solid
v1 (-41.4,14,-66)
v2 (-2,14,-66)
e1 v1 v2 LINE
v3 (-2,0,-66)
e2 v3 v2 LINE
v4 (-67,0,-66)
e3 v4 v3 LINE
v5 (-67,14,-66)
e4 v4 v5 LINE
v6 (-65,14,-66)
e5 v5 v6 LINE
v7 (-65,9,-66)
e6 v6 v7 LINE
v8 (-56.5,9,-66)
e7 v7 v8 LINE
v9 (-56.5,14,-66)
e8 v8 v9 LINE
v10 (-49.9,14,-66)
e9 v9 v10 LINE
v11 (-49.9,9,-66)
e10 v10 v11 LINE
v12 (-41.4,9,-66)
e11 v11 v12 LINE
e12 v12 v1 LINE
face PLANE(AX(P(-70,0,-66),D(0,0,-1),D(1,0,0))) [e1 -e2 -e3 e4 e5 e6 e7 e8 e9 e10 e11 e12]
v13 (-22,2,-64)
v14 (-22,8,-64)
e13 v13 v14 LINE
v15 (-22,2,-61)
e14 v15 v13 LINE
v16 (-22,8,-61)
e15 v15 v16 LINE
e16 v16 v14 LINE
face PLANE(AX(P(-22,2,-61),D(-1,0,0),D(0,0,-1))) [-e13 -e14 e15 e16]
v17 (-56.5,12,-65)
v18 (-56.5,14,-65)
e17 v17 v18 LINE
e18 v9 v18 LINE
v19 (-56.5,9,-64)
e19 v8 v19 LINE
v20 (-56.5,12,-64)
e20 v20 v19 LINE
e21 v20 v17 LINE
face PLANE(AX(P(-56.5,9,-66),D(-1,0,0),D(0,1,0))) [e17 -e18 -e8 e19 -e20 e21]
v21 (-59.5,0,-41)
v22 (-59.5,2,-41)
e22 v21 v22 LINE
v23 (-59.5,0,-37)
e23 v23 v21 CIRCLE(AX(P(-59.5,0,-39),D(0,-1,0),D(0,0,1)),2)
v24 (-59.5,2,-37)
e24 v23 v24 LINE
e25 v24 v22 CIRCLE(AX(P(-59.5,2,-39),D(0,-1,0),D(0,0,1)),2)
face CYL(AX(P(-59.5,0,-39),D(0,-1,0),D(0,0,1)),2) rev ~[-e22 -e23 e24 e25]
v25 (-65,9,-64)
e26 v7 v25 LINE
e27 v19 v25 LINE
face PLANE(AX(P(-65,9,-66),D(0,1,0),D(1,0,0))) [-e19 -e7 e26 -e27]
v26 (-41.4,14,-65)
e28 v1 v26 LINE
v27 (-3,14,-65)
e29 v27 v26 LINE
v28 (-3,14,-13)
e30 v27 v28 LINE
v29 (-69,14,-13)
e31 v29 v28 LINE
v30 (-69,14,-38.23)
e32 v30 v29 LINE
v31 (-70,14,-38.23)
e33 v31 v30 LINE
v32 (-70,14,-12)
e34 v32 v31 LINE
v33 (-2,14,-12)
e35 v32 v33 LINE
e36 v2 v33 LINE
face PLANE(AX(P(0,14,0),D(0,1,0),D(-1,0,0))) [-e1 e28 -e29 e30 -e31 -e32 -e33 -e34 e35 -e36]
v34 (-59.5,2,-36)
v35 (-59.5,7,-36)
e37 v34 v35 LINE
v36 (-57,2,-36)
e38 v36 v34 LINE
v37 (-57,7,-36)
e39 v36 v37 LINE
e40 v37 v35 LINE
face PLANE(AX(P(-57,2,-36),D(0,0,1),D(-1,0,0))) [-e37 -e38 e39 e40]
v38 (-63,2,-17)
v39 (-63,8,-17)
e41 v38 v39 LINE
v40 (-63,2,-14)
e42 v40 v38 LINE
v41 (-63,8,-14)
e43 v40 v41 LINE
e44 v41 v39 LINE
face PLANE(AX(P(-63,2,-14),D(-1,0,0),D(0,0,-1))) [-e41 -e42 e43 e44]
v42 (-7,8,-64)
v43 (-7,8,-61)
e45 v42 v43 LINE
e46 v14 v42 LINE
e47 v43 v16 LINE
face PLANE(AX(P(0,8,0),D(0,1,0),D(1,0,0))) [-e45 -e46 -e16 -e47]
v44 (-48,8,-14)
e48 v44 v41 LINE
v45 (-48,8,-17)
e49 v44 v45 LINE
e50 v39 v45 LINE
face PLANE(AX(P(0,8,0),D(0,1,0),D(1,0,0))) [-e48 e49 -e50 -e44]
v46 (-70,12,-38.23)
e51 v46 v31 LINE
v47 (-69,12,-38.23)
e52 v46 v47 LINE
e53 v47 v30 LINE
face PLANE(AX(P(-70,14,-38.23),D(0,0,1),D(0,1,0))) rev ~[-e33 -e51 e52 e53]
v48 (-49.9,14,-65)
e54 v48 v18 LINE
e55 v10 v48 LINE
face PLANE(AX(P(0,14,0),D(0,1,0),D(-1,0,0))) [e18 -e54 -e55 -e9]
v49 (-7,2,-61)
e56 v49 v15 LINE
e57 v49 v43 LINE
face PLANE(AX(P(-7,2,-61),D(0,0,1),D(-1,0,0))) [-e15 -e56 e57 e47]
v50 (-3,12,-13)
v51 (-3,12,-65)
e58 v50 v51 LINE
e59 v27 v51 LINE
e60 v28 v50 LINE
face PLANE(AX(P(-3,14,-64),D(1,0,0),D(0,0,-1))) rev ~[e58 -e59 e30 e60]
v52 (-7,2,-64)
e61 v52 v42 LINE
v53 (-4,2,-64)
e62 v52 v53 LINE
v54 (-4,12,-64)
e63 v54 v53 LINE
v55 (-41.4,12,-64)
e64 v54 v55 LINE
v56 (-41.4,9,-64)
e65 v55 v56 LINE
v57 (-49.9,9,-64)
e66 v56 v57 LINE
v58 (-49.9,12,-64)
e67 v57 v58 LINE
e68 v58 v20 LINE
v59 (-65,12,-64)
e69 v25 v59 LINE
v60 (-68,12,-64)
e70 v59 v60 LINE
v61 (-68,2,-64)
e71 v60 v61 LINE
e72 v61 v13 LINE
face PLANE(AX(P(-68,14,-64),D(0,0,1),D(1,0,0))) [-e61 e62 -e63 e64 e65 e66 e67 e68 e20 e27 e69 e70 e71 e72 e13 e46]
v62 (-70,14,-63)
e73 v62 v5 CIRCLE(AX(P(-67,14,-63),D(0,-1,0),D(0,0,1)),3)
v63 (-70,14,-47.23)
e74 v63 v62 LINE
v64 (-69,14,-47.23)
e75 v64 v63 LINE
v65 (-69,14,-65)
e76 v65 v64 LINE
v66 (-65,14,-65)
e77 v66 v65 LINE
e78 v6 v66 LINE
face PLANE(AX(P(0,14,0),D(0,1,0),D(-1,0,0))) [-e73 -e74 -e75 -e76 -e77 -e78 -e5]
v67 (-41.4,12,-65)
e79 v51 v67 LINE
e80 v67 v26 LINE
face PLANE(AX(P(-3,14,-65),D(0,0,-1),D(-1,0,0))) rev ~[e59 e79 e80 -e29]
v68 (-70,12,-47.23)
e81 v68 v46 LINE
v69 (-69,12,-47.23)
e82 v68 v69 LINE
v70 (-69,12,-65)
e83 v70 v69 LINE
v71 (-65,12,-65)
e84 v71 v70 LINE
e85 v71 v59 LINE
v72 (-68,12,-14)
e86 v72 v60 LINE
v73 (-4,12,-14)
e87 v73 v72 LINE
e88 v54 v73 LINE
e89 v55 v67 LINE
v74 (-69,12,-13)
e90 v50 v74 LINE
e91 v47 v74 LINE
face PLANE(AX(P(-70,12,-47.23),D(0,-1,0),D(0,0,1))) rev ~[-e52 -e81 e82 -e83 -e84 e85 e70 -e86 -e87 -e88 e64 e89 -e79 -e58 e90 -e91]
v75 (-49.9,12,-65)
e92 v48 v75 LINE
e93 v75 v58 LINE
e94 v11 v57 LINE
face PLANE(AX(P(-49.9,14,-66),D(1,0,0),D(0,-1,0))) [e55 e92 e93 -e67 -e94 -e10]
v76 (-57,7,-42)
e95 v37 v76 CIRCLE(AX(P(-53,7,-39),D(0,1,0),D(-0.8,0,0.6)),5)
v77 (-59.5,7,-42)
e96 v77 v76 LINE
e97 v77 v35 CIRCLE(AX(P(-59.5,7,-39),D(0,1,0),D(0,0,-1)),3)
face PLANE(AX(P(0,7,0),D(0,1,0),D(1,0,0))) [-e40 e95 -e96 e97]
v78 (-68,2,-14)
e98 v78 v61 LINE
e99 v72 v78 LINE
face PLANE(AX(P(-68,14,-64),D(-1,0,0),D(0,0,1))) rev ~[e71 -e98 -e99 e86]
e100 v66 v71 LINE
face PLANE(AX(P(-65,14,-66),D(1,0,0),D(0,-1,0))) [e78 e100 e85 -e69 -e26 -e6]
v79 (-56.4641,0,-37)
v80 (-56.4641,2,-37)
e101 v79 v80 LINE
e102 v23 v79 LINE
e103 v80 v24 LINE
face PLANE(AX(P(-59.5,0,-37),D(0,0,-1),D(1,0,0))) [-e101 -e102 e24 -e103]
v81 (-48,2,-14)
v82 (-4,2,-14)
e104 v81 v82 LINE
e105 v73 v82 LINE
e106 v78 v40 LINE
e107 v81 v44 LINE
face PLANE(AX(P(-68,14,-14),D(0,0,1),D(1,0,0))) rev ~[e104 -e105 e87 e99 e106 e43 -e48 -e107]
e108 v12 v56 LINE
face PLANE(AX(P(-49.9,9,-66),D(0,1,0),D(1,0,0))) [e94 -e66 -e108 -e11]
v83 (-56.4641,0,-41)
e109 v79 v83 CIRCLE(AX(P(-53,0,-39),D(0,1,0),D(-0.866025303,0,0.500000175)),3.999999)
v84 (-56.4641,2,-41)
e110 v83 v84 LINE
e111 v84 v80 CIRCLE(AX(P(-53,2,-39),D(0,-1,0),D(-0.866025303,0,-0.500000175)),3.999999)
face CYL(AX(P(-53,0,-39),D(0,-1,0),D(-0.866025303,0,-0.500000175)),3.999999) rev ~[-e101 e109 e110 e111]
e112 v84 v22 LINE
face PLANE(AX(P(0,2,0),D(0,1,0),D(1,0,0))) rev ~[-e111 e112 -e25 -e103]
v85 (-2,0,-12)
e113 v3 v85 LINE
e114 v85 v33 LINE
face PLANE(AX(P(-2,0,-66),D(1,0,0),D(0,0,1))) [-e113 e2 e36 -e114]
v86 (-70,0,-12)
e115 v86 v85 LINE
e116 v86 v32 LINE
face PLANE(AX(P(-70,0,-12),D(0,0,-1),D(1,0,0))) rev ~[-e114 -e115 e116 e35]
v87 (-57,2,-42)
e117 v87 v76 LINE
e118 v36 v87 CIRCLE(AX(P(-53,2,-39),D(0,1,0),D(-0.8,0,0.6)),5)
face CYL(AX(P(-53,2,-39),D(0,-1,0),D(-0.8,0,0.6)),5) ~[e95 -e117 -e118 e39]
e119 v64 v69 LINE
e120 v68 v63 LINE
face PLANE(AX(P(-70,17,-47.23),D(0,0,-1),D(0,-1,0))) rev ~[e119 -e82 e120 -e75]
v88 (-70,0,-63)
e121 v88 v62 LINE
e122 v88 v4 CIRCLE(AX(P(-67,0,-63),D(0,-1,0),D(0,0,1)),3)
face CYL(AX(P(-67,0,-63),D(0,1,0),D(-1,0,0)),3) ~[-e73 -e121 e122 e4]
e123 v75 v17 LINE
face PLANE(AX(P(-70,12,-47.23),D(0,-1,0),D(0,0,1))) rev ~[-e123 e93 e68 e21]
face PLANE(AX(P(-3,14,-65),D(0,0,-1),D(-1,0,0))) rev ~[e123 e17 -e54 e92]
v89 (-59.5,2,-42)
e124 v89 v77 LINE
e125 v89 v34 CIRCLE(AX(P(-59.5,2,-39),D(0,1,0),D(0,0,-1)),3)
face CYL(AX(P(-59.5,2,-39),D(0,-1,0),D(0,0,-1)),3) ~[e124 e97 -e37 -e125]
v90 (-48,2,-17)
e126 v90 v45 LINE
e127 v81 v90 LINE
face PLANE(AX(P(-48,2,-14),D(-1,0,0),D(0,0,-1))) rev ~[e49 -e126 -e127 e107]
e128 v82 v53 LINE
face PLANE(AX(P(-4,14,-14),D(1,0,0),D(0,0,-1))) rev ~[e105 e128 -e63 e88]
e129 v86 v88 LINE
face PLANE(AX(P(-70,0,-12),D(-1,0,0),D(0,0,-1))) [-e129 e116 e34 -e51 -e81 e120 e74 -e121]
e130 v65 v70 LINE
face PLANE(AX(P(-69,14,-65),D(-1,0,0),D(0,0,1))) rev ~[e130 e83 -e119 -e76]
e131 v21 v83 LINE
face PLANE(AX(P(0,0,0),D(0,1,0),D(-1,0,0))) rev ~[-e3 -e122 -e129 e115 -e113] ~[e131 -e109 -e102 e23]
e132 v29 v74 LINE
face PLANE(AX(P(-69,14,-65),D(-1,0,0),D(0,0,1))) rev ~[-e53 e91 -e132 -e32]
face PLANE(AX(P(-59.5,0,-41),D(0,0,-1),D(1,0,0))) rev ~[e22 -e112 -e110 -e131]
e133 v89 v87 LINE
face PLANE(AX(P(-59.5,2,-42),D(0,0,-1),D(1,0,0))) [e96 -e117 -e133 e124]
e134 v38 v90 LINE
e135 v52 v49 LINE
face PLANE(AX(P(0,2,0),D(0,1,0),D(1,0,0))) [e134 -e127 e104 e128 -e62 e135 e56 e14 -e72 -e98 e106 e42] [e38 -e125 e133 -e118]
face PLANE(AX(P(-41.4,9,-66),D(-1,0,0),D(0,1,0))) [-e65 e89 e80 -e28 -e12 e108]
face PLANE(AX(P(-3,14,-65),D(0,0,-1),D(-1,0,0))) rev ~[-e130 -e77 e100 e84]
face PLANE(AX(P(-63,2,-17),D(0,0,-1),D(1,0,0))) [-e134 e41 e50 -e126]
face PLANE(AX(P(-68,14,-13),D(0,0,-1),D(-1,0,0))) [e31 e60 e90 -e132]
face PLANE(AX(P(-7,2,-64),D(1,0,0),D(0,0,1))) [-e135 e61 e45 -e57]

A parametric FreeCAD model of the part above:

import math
import FreeCAD as App
import Part
import Sketcher


def edges_at(feature, points):
    """Names of the edges that pass closest to the given points."""
    edges = feature.Shape.Edges
    near = lambda p: min(range(len(edges)), key=lambda i: edges[i].distToShape(Part.Vertex(*p))[0])
    return sorted({f"Edge{near(p) + 1}" for p in points})


def add_polygon(sketch, points):
    """Adds a closed chain of lines whose ends are joined by coincident constraints."""
    first, n = sketch.GeometryCount, len(points)
    for a, b in zip(points, points[1:] + points[:1]):
        sketch.addGeometry(Part.LineSegment(App.Vector(*a, 0), App.Vector(*b, 0)), False)
    for i in range(n):
        sketch.addConstraint(Sketcher.Constraint("Coincident", first + i, 2, first + (i + 1) % n, 1))

doc = App.newDocument("Part")
body = doc.addObject("PartDesign::Body", "Body")

# Sketch on XZ plane
sketch1 = body.newObject("Sketcher::SketchObject", "Sketch")
sketch1.AttachmentSupport = (doc.getObject("XZ_Plane"), [""])
sketch1.MapMode = "FlatFace"
add_polygon(sketch1, [(-70, -66), (-70, -12), (-2, -12), (-2, -66)])  # lines 0-3
sketch1.addConstraint(Sketcher.Constraint("Vertical", 0))
sketch1.addConstraint(Sketcher.Constraint("Horizontal", 1))
sketch1.addConstraint(Sketcher.Constraint("Vertical", 2))
sketch1.addConstraint(Sketcher.Constraint("Horizontal", 3))
sketch1.addConstraint(Sketcher.Constraint("DistanceX", 1, 1, 1, 2, 68.0))
sketch1.addConstraint(Sketcher.Constraint("DistanceY", 0, 1, 0, 2, 54.0))
sketch1.addConstraint(Sketcher.Constraint("DistanceX", 0, 2, -1, 1, 70.0))
sketch1.addConstraint(Sketcher.Constraint("DistanceY", 0, 2, -1, 1, 12.0))
pad1 = body.newObject("PartDesign::Pad", "Pad")
pad1.Profile = sketch1
pad1.Length = 14
pad1.Reversed = True

# Sketch on XZ plane
sketch2 = body.newObject("Sketcher::SketchObject", "Sketch001")
sketch2.AttachmentSupport = (doc.getObject("XZ_Plane"), [""])
sketch2.MapMode = "FlatFace"
sketch2.AttachmentOffset = App.Placement(App.Vector(0, 0, -14), App.Rotation())
add_polygon(sketch2, [(-4, -64), (-68, -64), (-68, -14), (-4, -14)])  # lines 0-3
sketch2.addConstraint(Sketcher.Constraint("Horizontal", 0))
sketch2.addConstraint(Sketcher.Constraint("Vertical", 1))
sketch2.addConstraint(Sketcher.Constraint("Horizontal", 2))
sketch2.addConstraint(Sketcher.Constraint("Vertical", 3))
sketch2.addConstraint(Sketcher.Constraint("DistanceX", 0, 2, 0, 1, 64.0))
sketch2.addConstraint(Sketcher.Constraint("DistanceY", 1, 1, 1, 2, 50.0))
sketch2.addConstraint(Sketcher.Constraint("DistanceX", 0, 2, -1, 1, 68.0))
sketch2.addConstraint(Sketcher.Constraint("DistanceY", 0, 2, -1, 1, 64.0))
pocket1 = body.newObject("PartDesign::Pocket", "Pocket")
pocket1.Profile = sketch2
pocket1.Length = 12
pocket1.Reversed = True

# Sketch on XZ plane
sketch3 = body.newObject("Sketcher::SketchObject", "Sketch002")
sketch3.AttachmentSupport = (doc.getObject("XZ_Plane"), [""])
sketch3.MapMode = "FlatFace"
sketch3.AttachmentOffset = App.Placement(App.Vector(0, 0, -2), App.Rotation())
add_polygon(sketch3, [(-63, -14), (-48, -14), (-48, -17), (-63, -17)])  # lines 0-3
add_polygon(sketch3, [(-7, -64), (-22, -64), (-22, -61), (-7, -61)])  # lines 4-7
sketch3.addConstraint(Sketcher.Constraint("Horizontal", 0))
sketch3.addConstraint(Sketcher.Constraint("Vertical", 1))
sketch3.addConstraint(Sketcher.Constraint("Horizontal", 2))
sketch3.addConstraint(Sketcher.Constraint("Vertical", 3))
sketch3.addConstraint(Sketcher.Constraint("Horizontal", 4))
sketch3.addConstraint(Sketcher.Constraint("Vertical", 5))
sketch3.addConstraint(Sketcher.Constraint("Horizontal", 6))
sketch3.addConstraint(Sketcher.Constraint("Vertical", 7))
sketch3.addConstraint(Sketcher.Constraint("Equal", 2, 4))
sketch3.addConstraint(Sketcher.Constraint("Equal", 3, 5))
sketch3.addConstraint(Sketcher.Constraint("DistanceX", 0, 1, 0, 2, 15.0))
sketch3.addConstraint(Sketcher.Constraint("DistanceY", 1, 2, 1, 1, 3.0))
sketch3.addConstraint(Sketcher.Constraint("DistanceX", 0, 2, -1, 1, 48.0))
sketch3.addConstraint(Sketcher.Constraint("DistanceY", 0, 2, -1, 1, 14.0))
sketch3.addConstraint(Sketcher.Constraint("DistanceX", 4, 2, -1, 1, 22.0))
sketch3.addConstraint(Sketcher.Constraint("DistanceY", 4, 2, -1, 1, 64.0))
pad2 = body.newObject("PartDesign::Pad", "Pad001")
pad2.Profile = sketch3
pad2.Length = 6
pad2.Reversed = True

# Sketch on XZ plane
sketch4 = body.newObject("Sketcher::SketchObject", "Sketch003")
sketch4.AttachmentSupport = (doc.getObject("XZ_Plane"), [""])
sketch4.MapMode = "FlatFace"
sketch4.addGeometry(Part.ArcOfCircle(Part.Circle(App.Vector(-53, -39, 0), App.Vector(0, 0, 1), 4), math.radians(-150), math.radians(150)), False)
sketch4.addGeometry(Part.LineSegment(App.Vector(-56.5, -37, 0), App.Vector(-59.5, -37, 0)), False)
sketch4.addGeometry(Part.ArcOfCircle(Part.Circle(App.Vector(-59.5, -39, 0), App.Vector(0, 0, 1), 2), math.radians(90), math.radians(270)), False)
sketch4.addGeometry(Part.LineSegment(App.Vector(-59.5, -41, 0), App.Vector(-56.5, -41, 0)), False)
sketch4.addConstraint(Sketcher.Constraint("Coincident", 0, 2, 1, 1))
sketch4.addConstraint(Sketcher.Constraint("Tangent", 1, 2, 2, 1))
sketch4.addConstraint(Sketcher.Constraint("Tangent", 2, 2, 3, 1))
sketch4.addConstraint(Sketcher.Constraint("Coincident", 3, 2, 0, 1))
sketch4.addConstraint(Sketcher.Constraint("Horizontal", 1))
sketch4.addConstraint(Sketcher.Constraint("Horizontal", 3))
sketch4.addConstraint(Sketcher.Constraint("Horizontal", 0, 3, 2, 3))
sketch4.addConstraint(Sketcher.Constraint("Radius", 0, 4.0))
sketch4.addConstraint(Sketcher.Constraint("Radius", 2, 2.0))
sketch4.addConstraint(Sketcher.Constraint("DistanceX", 2, 3, 0, 3, 6.5))
sketch4.addConstraint(Sketcher.Constraint("DistanceX", 0, 3, -1, 1, 53.0))
sketch4.addConstraint(Sketcher.Constraint("DistanceY", 0, 3, -1, 1, 39.0))
pocket2 = body.newObject("PartDesign::Pocket", "Pocket001")
pocket2.Profile = sketch4
pocket2.Length = 6

# Sketch on XZ plane
sketch5 = body.newObject("Sketcher::SketchObject", "Sketch004")
sketch5.AttachmentSupport = (doc.getObject("XZ_Plane"), [""])
sketch5.MapMode = "FlatFace"
sketch5.AttachmentOffset = App.Placement(App.Vector(0, 0, -14), App.Rotation())
add_polygon(sketch5, [(-3, -65), (-69, -65), (-69, -13), (-3, -13)])  # lines 0-3
sketch5.addConstraint(Sketcher.Constraint("Horizontal", 0))
sketch5.addConstraint(Sketcher.Constraint("Vertical", 1))
sketch5.addConstraint(Sketcher.Constraint("Horizontal", 2))
sketch5.addConstraint(Sketcher.Constraint("Vertical", 3))
sketch5.addConstraint(Sketcher.Constraint("DistanceX", 0, 2, 0, 1, 66.0))
sketch5.addConstraint(Sketcher.Constraint("DistanceY", 1, 1, 1, 2, 52.0))
sketch5.addConstraint(Sketcher.Constraint("DistanceX", 0, 2, -1, 1, 69.0))
sketch5.addConstraint(Sketcher.Constraint("DistanceY", 0, 2, -1, 1, 65.0))
pocket3 = body.newObject("PartDesign::Pocket", "Pocket002")
pocket3.Profile = sketch5
pocket3.Length = 2
pocket3.Reversed = True

# Sketch on YZ plane
sketch6 = body.newObject("Sketcher::SketchObject", "Sketch005")
sketch6.AttachmentSupport = (doc.getObject("YZ_Plane"), [""])
sketch6.MapMode = "FlatFace"
sketch6.AttachmentOffset = App.Placement(App.Vector(0, 0, -70), App.Rotation())
add_polygon(sketch6, [(17, -47), (12, -47), (12, -38), (17, -38)])  # lines 0-3
sketch6.addConstraint(Sketcher.Constraint("Horizontal", 0))
sketch6.addConstraint(Sketcher.Constraint("Vertical", 1))
sketch6.addConstraint(Sketcher.Constraint("Horizontal", 2))
sketch6.addConstraint(Sketcher.Constraint("Vertical", 3))
sketch6.addConstraint(Sketcher.Constraint("DistanceX", 0, 2, 0, 1, 5.0))
sketch6.addConstraint(Sketcher.Constraint("DistanceY", 1, 1, 1, 2, 9.0))
sketch6.addConstraint(Sketcher.Constraint("DistanceX", -1, 1, 0, 2, 12.0))
sketch6.addConstraint(Sketcher.Constraint("DistanceY", 0, 2, -1, 1, 47.23))
pocket4 = body.newObject("PartDesign::Pocket", "Pocket003")
pocket4.Profile = sketch6
pocket4.Length = 10
pocket4.Reversed = True

# Sketch on XY plane
sketch7 = body.newObject("Sketcher::SketchObject", "Sketch006")
sketch7.AttachmentSupport = (doc.getObject("XY_Plane"), [""])
sketch7.MapMode = "FlatFace"
sketch7.AttachmentOffset = App.Placement(App.Vector(0, 0, -66), App.Rotation())
add_polygon(sketch7, [(-50, 14), (-41, 14), (-41, 9), (-50, 9)])  # lines 0-3
add_polygon(sketch7, [(-65, 14), (-56, 14), (-56, 9), (-65, 9)])  # lines 4-7
sketch7.addConstraint(Sketcher.Constraint("Horizontal", 0))
sketch7.addConstraint(Sketcher.Constraint("Vertical", 1))
sketch7.addConstraint(Sketcher.Constraint("Horizontal", 2))
sketch7.addConstraint(Sketcher.Constraint("Vertical", 3))
sketch7.addConstraint(Sketcher.Constraint("Horizontal", 4))
sketch7.addConstraint(Sketcher.Constraint("Vertical", 5))
sketch7.addConstraint(Sketcher.Constraint("Horizontal", 6))
sketch7.addConstraint(Sketcher.Constraint("Vertical", 7))
sketch7.addConstraint(Sketcher.Constraint("Horizontal", 3, 2, 4, 2))
sketch7.addConstraint(Sketcher.Constraint("Horizontal", 2, 2, 5, 2))
sketch7.addConstraint(Sketcher.Constraint("Equal", 2, 4))
sketch7.addConstraint(Sketcher.Constraint("DistanceY", 1, 2, 1, 1, 5.0))
sketch7.addConstraint(Sketcher.Constraint("DistanceX", 0, 1, 0, 2, 8.5))
sketch7.addConstraint(Sketcher.Constraint("DistanceY", -1, 1, 0, 2, 14.0))
sketch7.addConstraint(Sketcher.Constraint("DistanceX", 6, 2, -1, 1, 65.0))
sketch7.addConstraint(Sketcher.Constraint("DistanceX", 0, 2, -1, 1, 41.4))
pocket5 = body.newObject("PartDesign::Pocket", "Pocket004")
pocket5.Profile = sketch7
pocket5.Length = 10
pocket5.Reversed = True
doc.recompute()

fillet = body.newObject("PartDesign::Fillet", "Fillet")
fillet.Base = (pocket5, edges_at(pocket5, [(-70, 7, -66)]))
fillet.Radius = 3

# Sketch on XZ plane
sketch8 = body.newObject("Sketcher::SketchObject", "Sketch007")
sketch8.AttachmentSupport = (doc.getObject("XZ_Plane"), [""])
sketch8.MapMode = "FlatFace"
sketch8.AttachmentOffset = App.Placement(App.Vector(0, 0, -2), App.Rotation())
sketch8.addGeometry(Part.LineSegment(App.Vector(-57, -42, 0), App.Vector(-59.5, -42, 0)), False)
sketch8.addGeometry(Part.ArcOfCircle(Part.Circle(App.Vector(-59.5, -39, 0), App.Vector(0, 0, 1), 3), math.radians(90), math.radians(270)), False)
sketch8.addGeometry(Part.LineSegment(App.Vector(-59.5, -36, 0), App.Vector(-57, -36, 0)), False)
sketch8.addGeometry(Part.ArcOfCircle(Part.Circle(App.Vector(-53, -39, 0), App.Vector(0, 0, 1), 5), math.radians(-143), math.radians(143)), False)
sketch8.addConstraint(Sketcher.Constraint("Tangent", 0, 2, 1, 2))
sketch8.addConstraint(Sketcher.Constraint("Tangent", 1, 1, 2, 1))
sketch8.addConstraint(Sketcher.Constraint("Coincident", 2, 2, 3, 2))
sketch8.addConstraint(Sketcher.Constraint("Coincident", 3, 1, 0, 1))
sketch8.addConstraint(Sketcher.Constraint("Horizontal", 0))
sketch8.addConstraint(Sketcher.Constraint("Horizontal", 2))
sketch8.addConstraint(Sketcher.Constraint("Horizontal", 1, 3, 3, 3))
sketch8.addConstraint(Sketcher.Constraint("Radius", 1, 3.0))
sketch8.addConstraint(Sketcher.Constraint("Radius", 3, 5.0))
sketch8.addConstraint(Sketcher.Constraint("DistanceX", 0, 2, 0, 1, 2.5))
sketch8.addConstraint(Sketcher.Constraint("DistanceY", 1, 3, -1, 1, 39.0))
sketch8.addConstraint(Sketcher.Constraint("DistanceX", 3, 3, -1, 1, 53.0))
pad3 = body.newObject("PartDesign::Pad", "Pad002")
pad3.Profile = sketch8
pad3.Length = 5
pad3.Reversed = True

doc.recompute()
